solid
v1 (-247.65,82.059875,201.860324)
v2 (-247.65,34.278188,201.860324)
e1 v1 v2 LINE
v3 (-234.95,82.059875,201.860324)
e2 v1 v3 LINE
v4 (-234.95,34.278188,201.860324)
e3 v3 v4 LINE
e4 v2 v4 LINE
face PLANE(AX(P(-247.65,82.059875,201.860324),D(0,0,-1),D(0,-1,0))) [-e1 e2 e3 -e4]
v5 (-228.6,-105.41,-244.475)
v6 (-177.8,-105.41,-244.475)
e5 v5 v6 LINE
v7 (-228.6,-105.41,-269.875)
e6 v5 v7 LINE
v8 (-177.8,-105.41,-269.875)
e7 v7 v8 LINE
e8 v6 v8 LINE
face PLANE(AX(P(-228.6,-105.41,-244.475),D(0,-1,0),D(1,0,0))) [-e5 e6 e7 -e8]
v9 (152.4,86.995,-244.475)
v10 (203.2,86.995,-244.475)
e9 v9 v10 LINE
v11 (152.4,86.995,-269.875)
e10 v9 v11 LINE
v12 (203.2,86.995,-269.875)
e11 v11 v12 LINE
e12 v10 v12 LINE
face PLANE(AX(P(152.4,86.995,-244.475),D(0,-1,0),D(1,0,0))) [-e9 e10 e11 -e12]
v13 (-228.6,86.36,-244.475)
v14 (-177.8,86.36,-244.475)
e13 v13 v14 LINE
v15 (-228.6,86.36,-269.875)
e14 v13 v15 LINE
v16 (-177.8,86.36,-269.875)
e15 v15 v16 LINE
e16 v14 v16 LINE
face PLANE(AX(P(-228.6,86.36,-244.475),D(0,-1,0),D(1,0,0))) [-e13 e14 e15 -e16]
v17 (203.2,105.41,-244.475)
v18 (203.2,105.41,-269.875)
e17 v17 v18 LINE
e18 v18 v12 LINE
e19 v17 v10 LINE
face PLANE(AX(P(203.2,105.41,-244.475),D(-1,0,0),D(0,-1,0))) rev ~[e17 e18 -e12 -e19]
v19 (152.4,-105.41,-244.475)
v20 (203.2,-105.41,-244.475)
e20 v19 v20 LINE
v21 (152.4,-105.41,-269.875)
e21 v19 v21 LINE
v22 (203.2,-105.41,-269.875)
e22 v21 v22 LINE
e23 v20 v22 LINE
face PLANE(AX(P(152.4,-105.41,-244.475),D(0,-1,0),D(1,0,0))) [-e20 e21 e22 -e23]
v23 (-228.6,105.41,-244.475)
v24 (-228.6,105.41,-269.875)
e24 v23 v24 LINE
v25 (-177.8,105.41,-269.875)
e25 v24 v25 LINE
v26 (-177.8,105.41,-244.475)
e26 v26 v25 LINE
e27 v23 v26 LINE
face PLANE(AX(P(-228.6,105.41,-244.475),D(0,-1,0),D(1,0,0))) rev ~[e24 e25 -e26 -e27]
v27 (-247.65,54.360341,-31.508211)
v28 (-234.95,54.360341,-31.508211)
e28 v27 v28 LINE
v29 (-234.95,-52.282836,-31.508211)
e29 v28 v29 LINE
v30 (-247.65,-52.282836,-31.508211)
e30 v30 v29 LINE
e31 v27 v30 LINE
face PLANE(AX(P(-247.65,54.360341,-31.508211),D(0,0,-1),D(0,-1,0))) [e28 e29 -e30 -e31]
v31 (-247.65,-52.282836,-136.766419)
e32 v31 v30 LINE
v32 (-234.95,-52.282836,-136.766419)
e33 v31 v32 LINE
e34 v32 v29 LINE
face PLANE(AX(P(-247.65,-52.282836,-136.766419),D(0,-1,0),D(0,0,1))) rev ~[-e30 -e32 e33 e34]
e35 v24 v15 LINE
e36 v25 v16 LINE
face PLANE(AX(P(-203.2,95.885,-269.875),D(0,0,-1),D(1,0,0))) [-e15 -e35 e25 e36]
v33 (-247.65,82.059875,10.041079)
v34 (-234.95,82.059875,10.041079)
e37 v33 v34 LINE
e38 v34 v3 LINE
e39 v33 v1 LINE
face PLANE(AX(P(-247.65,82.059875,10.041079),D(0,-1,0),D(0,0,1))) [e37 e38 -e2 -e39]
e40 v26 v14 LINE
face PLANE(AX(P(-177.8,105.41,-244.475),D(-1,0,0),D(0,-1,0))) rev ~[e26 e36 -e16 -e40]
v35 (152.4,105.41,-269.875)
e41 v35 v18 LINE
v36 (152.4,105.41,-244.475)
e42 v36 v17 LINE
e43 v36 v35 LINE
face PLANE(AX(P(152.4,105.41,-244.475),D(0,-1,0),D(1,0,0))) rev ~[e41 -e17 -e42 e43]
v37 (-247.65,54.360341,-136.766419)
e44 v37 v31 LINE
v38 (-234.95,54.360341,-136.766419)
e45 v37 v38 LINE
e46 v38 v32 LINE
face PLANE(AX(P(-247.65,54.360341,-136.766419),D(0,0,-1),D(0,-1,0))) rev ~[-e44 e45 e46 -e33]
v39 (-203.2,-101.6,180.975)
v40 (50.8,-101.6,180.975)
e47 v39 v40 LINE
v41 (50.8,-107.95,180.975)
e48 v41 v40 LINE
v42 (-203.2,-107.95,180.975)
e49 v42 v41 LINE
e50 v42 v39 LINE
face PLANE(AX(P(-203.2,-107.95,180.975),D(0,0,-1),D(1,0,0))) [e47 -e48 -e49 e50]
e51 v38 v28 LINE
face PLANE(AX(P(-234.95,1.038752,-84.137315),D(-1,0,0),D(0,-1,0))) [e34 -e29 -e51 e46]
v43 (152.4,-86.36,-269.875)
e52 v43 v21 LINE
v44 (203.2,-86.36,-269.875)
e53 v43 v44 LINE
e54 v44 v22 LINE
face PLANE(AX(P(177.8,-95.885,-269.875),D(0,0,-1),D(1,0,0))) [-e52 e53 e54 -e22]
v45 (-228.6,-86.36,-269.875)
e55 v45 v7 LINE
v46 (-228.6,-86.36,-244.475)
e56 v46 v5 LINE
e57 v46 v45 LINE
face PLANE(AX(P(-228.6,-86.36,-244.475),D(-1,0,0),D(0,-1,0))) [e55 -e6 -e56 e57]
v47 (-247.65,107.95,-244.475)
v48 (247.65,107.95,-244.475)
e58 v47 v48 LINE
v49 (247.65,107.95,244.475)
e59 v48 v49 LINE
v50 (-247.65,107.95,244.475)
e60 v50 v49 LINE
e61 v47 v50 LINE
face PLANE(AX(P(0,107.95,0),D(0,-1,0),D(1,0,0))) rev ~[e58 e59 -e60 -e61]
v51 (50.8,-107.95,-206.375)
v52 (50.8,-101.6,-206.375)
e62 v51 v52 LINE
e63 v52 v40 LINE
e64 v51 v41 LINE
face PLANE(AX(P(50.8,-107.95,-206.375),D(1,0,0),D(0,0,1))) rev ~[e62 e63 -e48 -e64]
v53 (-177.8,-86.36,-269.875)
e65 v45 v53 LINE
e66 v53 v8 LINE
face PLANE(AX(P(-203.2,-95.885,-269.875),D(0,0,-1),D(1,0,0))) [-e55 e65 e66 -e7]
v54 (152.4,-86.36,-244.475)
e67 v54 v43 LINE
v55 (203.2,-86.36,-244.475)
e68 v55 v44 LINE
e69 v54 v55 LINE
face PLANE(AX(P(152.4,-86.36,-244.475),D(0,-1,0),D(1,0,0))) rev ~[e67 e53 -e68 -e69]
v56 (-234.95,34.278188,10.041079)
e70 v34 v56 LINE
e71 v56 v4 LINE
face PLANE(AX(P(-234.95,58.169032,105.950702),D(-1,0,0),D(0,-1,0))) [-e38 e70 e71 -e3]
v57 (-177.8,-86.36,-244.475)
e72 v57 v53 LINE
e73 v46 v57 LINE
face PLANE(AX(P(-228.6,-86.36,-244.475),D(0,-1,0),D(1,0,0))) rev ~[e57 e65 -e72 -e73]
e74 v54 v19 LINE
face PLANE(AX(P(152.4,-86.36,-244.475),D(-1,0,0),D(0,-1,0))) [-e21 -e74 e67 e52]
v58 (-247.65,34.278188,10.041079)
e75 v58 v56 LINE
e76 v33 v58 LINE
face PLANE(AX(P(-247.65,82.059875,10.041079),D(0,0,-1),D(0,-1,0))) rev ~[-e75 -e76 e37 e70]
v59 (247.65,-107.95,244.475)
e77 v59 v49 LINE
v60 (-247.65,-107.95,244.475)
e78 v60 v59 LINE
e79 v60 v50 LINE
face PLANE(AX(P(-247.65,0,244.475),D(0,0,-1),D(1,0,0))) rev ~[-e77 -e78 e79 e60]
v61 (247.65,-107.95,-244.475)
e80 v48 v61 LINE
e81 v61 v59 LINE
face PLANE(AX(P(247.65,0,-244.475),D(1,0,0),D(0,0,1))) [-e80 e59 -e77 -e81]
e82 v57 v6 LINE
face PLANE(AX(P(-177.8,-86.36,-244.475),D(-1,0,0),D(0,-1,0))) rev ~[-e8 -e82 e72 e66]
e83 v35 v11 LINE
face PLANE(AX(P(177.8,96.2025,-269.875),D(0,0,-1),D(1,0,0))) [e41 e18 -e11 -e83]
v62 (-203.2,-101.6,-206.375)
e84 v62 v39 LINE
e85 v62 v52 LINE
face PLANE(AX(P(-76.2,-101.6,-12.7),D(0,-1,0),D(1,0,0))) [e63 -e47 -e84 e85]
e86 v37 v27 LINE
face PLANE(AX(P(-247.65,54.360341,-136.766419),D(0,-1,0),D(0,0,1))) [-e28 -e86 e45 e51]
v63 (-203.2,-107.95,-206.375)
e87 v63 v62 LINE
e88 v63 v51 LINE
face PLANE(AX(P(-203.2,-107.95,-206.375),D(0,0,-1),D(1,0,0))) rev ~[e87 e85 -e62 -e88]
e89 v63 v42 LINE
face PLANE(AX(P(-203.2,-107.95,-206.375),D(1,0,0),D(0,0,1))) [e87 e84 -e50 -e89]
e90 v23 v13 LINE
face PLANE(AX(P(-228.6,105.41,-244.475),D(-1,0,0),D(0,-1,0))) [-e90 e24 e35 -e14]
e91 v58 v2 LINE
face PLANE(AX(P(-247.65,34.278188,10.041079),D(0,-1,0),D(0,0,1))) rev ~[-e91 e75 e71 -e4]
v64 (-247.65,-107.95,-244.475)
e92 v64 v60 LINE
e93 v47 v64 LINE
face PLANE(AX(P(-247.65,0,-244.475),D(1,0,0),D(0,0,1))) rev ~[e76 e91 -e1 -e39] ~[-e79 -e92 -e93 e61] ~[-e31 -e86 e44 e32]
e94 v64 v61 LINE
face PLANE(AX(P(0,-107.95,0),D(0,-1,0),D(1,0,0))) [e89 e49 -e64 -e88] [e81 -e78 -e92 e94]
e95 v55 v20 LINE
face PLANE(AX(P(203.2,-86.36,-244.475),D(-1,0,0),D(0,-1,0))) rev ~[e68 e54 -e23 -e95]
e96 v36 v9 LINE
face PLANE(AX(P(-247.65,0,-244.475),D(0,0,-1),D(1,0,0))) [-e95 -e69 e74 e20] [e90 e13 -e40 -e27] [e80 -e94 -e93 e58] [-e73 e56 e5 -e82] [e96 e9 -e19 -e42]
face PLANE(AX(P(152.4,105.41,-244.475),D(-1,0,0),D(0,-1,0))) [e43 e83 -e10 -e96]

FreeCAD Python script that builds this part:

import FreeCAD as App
import Part
import Sketcher
Q = App.Units.Quantity

doc = App.newDocument("Part")
body = doc.addObject("PartDesign::Body", "Body")

# Sketch on XZ plane
sketch1 = body.newObject("Sketcher::SketchObject", "Sketch")
sketch1.AttachmentSupport = (doc.getObject("XZ_Plane"), [""])
sketch1.MapMode = "FlatFace"
sketch1.addGeometry([
    Part.LineSegment(App.Vector(-248, 244, 0), App.Vector(-248, -244, 0)),
    Part.LineSegment(App.Vector(-248, -244, 0), App.Vector(248, -244, 0)),
    Part.LineSegment(App.Vector(248, -244, 0), App.Vector(248, 244, 0)),
    Part.LineSegment(App.Vector(248, 244, 0), App.Vector(-248, 244, 0)),
], False)
sketch1.addConstraint([
    Sketcher.Constraint("Coincident", 0, 2, 1, 1),
    Sketcher.Constraint("Coincident", 1, 2, 2, 1),
    Sketcher.Constraint("Coincident", 2, 2, 3, 1),
    Sketcher.Constraint("Coincident", 3, 2, 0, 1),
    Sketcher.Constraint("Vertical", 0),
    Sketcher.Constraint("Horizontal", 1),
    Sketcher.Constraint("Vertical", 2),
    Sketcher.Constraint("Horizontal", 3),
    Sketcher.Constraint("Symmetric", 0, 2, 2, 2, -1, 1),
    Sketcher.Constraint("DistanceX", 1, 1, 1, 2, Q("19.5 in")),
    Sketcher.Constraint("DistanceY", 0, 2, 0, 1, Q("19.25 in")),
])
pad1 = body.newObject("PartDesign::Pad", "Pad")
pad1.Profile = sketch1
pad1.Length = Q("8.5 in")
pad1.Midplane = True

# Sketch on XZ plane
sketch2 = body.newObject("Sketcher::SketchObject", "Sketch001")
sketch2.AttachmentSupport = (doc.getObject("XZ_Plane"), [""])
sketch2.MapMode = "FlatFace"
sketch2.AttachmentOffset = App.Placement(App.Vector(0, 0, 4.25 * 25.4), App.Rotation())
sketch2.addGeometry([
    Part.LineSegment(App.Vector(-203, 181, 0), App.Vector(-203, -206, 0)),
    Part.LineSegment(App.Vector(-203, -206, 0), App.Vector(51, -206, 0)),
    Part.LineSegment(App.Vector(51, -206, 0), App.Vector(51, 181, 0)),
    Part.LineSegment(App.Vector(51, 181, 0), App.Vector(-203, 181, 0)),
], False)
sketch2.addConstraint([
    Sketcher.Constraint("Coincident", 0, 2, 1, 1),
    Sketcher.Constraint("Coincident", 1, 2, 2, 1),
    Sketcher.Constraint("Coincident", 2, 2, 3, 1),
    Sketcher.Constraint("Coincident", 3, 2, 0, 1),
    Sketcher.Constraint("Vertical", 0),
    Sketcher.Constraint("Horizontal", 1),
    Sketcher.Constraint("Vertical", 2),
    Sketcher.Constraint("Horizontal", 3),
    Sketcher.Constraint("DistanceX", 1, 1, 1, 2, Q("10 in")),
    Sketcher.Constraint("DistanceX", 0, 2, -1, 1, Q("8 in")),
    Sketcher.Constraint("DistanceY", 0, 2, 0, 1, Q("15.25 in")),
    Sketcher.Constraint("DistanceY", 0, 2, -1, 1, Q("8.125 in")),
])
pocket1 = body.newObject("PartDesign::Pocket", "Pocket")
pocket1.Profile = sketch2
pocket1.Length = Q("0.25 in")

# Sketch on XY plane
sketch3 = body.newObject("Sketcher::SketchObject", "Sketch002")
sketch3.AttachmentSupport = (doc.getObject("XY_Plane"), [""])
sketch3.MapMode = "FlatFace"
sketch3.AttachmentOffset = App.Placement(App.Vector(0, 0, -9.625 * 25.4), App.Rotation())
sketch3.addGeometry([
    Part.LineSegment(App.Vector(-229, -105, 0), App.Vector(-229, -86, 0)),  # 0
    Part.LineSegment(App.Vector(-229, -86, 0), App.Vector(-178, -86, 0)),  # 1
    Part.LineSegment(App.Vector(-178, -86, 0), App.Vector(-178, -105, 0)),  # 2
    Part.LineSegment(App.Vector(-178, -105, 0), App.Vector(-229, -105, 0)),  # 3
    Part.LineSegment(App.Vector(152, -105, 0), App.Vector(152, -86, 0)),  # 4
    Part.LineSegment(App.Vector(152, -86, 0), App.Vector(203, -86, 0)),  # 5
    Part.LineSegment(App.Vector(203, -86, 0), App.Vector(203, -105, 0)),  # 6
    Part.LineSegment(App.Vector(203, -105, 0), App.Vector(152, -105, 0)),  # 7
    Part.LineSegment(App.Vector(152, 87, 0), App.Vector(152, 105, 0)),  # 8
    Part.LineSegment(App.Vector(152, 105, 0), App.Vector(203, 105, 0)),  # 9
    Part.LineSegment(App.Vector(203, 105, 0), App.Vector(203, 87, 0)),  # 10
    Part.LineSegment(App.Vector(203, 87, 0), App.Vector(152, 87, 0)),  # 11
    Part.LineSegment(App.Vector(-229, 86, 0), App.Vector(-229, 105, 0)),  # 12
    Part.LineSegment(App.Vector(-229, 105, 0), App.Vector(-178, 105, 0)),  # 13
    Part.LineSegment(App.Vector(-178, 105, 0), App.Vector(-178, 86, 0)),  # 14
    Part.LineSegment(App.Vector(-178, 86, 0), App.Vector(-229, 86, 0)),  # 15
], False)
sketch3.addConstraint([
    Sketcher.Constraint("Coincident", 0, 2, 1, 1),
    Sketcher.Constraint("Coincident", 1, 2, 2, 1),
    Sketcher.Constraint("Coincident", 2, 2, 3, 1),
    Sketcher.Constraint("Coincident", 3, 2, 0, 1),
    Sketcher.Constraint("Coincident", 4, 2, 5, 1),
    Sketcher.Constraint("Coincident", 5, 2, 6, 1),
    Sketcher.Constraint("Coincident", 6, 2, 7, 1),
    Sketcher.Constraint("Coincident", 7, 2, 4, 1),
    Sketcher.Constraint("Coincident", 8, 2, 9, 1),
    Sketcher.Constraint("Coincident", 9, 2, 10, 1),
    Sketcher.Constraint("Coincident", 10, 2, 11, 1),
    Sketcher.Constraint("Coincident", 11, 2, 8, 1),
    Sketcher.Constraint("Coincident", 12, 2, 13, 1),
    Sketcher.Constraint("Coincident", 13, 2, 14, 1),
    Sketcher.Constraint("Coincident", 14, 2, 15, 1),
    Sketcher.Constraint("Coincident", 15, 2, 12, 1),
    Sketcher.Constraint("Vertical", 0),
    Sketcher.Constraint("Horizontal", 1),
    Sketcher.Constraint("Vertical", 2),
    Sketcher.Constraint("Horizontal", 3),
    Sketcher.Constraint("Vertical", 4),
    Sketcher.Constraint("Horizontal", 5),
    Sketcher.Constraint("Vertical", 6),
    Sketcher.Constraint("Horizontal", 7),
    Sketcher.Constraint("Vertical", 8),
    Sketcher.Constraint("Horizontal", 9),
    Sketcher.Constraint("Vertical", 10),
    Sketcher.Constraint("Horizontal", 11),
    Sketcher.Constraint("Vertical", 12),
    Sketcher.Constraint("Horizontal", 13),
    Sketcher.Constraint("Vertical", 14),
    Sketcher.Constraint("Horizontal", 15),
    Sketcher.Constraint("Symmetric", 7, 2, 8, 2, -1),
    Sketcher.Constraint("Symmetric", 3, 2, 12, 2, -1),
    Sketcher.Constraint("Symmetric", 1, 2, 14, 2, -1),
    Sketcher.Constraint("Horizontal", 1, 2, 4, 2),
    Sketcher.Constraint("Horizontal", 3, 2, 6, 2),
    Sketcher.Constraint("Vertical", 6, 2, 9, 2),
    Sketcher.Constraint("Equal", 3, 5),
    Sketcher.Constraint("DistanceX", 1, 1, 1, 2, Q("2 in")),
    Sketcher.Constraint("DistanceX", 0, 2, -1, 1, Q("9 in")),
    Sketcher.Constraint("DistanceX", -1, 1, 4, 2, Q("6 in")),
    Sketcher.Constraint("DistanceY", 0, 1, 0, 2, Q("0.75 in")),
    Sketcher.Constraint("DistanceY", 0, 2, -1, 1, Q("3.4 in")),
    Sketcher.Constraint("DistanceY", 8, 1, 8, 2, Q("0.725 in")),
])
pad2 = body.newObject("PartDesign::Pad", "Pad001")
pad2.Profile = sketch3
pad2.Length = Q("1 in")
pad2.Reversed = True

# Sketch on YZ plane
sketch4 = body.newObject("Sketcher::SketchObject", "Sketch003")
sketch4.AttachmentSupport = (doc.getObject("YZ_Plane"), [""])
sketch4.MapMode = "FlatFace"
sketch4.AttachmentOffset = App.Placement(App.Vector(0, 0, -9.75 * 25.4), App.Rotation())
sketch4.addGeometry([
    Part.LineSegment(App.Vector(54, -32, 0), App.Vector(54, -137, 0)),  # 0
    Part.LineSegment(App.Vector(54, -137, 0), App.Vector(-52, -137, 0)),  # 1
    Part.LineSegment(App.Vector(-52, -137, 0), App.Vector(-52, -32, 0)),  # 2
    Part.LineSegment(App.Vector(-52, -32, 0), App.Vector(54, -32, 0)),  # 3
    Part.LineSegment(App.Vector(82, 202, 0), App.Vector(82, 10, 0)),  # 4
    Part.LineSegment(App.Vector(82, 10, 0), App.Vector(34, 10, 0)),  # 5
    Part.LineSegment(App.Vector(34, 10, 0), App.Vector(34, 202, 0)),  # 6
    Part.LineSegment(App.Vector(34, 202, 0), App.Vector(82, 202, 0)),  # 7
], False)
sketch4.addConstraint([
    Sketcher.Constraint("Coincident", 0, 2, 1, 1),
    Sketcher.Constraint("Coincident", 1, 2, 2, 1),
    Sketcher.Constraint("Coincident", 2, 2, 3, 1),
    Sketcher.Constraint("Coincident", 3, 2, 0, 1),
    Sketcher.Constraint("Coincident", 4, 2, 5, 1),
    Sketcher.Constraint("Coincident", 5, 2, 6, 1),
    Sketcher.Constraint("Coincident", 6, 2, 7, 1),
    Sketcher.Constraint("Coincident", 7, 2, 4, 1),
    Sketcher.Constraint("Vertical", 0),
    Sketcher.Constraint("Horizontal", 1),
    Sketcher.Constraint("Vertical", 2),
    Sketcher.Constraint("Horizontal", 3),
    Sketcher.Constraint("Vertical", 4),
    Sketcher.Constraint("Horizontal", 5),
    Sketcher.Constraint("Vertical", 6),
    Sketcher.Constraint("Horizontal", 7),
    Sketcher.Constraint("DistanceY", 0, 2, 4, 2, Q("146.807498 mm")),
    Sketcher.Constraint("DistanceX", 1, 2, 1, 1, Q("106.643178 mm")),
    Sketcher.Constraint("DistanceX", 5, 2, 5, 1, Q("47.781687 mm")),
    Sketcher.Constraint("DistanceY", 0, 2, 0, 1, Q("105.258208 mm")),
    Sketcher.Constraint("DistanceY", 4, 2, 4, 1, Q("191.819244 mm")),
    Sketcher.Constraint("DistanceX", -1, 1, 0, 2, Q("54.360341 mm")),
    Sketcher.Constraint("DistanceY", 0, 2, -1, 1, Q("136.766419 mm")),
    Sketcher.Constraint("DistanceX", 2, 2, 4, 2, Q("134.342711 mm")),
])
pocket2 = body.newObject("PartDesign::Pocket", "Pocket001")
pocket2.Profile = sketch4
pocket2.Length = Q("0.5 in")
pocket2.Reversed = True

doc.recompute()
